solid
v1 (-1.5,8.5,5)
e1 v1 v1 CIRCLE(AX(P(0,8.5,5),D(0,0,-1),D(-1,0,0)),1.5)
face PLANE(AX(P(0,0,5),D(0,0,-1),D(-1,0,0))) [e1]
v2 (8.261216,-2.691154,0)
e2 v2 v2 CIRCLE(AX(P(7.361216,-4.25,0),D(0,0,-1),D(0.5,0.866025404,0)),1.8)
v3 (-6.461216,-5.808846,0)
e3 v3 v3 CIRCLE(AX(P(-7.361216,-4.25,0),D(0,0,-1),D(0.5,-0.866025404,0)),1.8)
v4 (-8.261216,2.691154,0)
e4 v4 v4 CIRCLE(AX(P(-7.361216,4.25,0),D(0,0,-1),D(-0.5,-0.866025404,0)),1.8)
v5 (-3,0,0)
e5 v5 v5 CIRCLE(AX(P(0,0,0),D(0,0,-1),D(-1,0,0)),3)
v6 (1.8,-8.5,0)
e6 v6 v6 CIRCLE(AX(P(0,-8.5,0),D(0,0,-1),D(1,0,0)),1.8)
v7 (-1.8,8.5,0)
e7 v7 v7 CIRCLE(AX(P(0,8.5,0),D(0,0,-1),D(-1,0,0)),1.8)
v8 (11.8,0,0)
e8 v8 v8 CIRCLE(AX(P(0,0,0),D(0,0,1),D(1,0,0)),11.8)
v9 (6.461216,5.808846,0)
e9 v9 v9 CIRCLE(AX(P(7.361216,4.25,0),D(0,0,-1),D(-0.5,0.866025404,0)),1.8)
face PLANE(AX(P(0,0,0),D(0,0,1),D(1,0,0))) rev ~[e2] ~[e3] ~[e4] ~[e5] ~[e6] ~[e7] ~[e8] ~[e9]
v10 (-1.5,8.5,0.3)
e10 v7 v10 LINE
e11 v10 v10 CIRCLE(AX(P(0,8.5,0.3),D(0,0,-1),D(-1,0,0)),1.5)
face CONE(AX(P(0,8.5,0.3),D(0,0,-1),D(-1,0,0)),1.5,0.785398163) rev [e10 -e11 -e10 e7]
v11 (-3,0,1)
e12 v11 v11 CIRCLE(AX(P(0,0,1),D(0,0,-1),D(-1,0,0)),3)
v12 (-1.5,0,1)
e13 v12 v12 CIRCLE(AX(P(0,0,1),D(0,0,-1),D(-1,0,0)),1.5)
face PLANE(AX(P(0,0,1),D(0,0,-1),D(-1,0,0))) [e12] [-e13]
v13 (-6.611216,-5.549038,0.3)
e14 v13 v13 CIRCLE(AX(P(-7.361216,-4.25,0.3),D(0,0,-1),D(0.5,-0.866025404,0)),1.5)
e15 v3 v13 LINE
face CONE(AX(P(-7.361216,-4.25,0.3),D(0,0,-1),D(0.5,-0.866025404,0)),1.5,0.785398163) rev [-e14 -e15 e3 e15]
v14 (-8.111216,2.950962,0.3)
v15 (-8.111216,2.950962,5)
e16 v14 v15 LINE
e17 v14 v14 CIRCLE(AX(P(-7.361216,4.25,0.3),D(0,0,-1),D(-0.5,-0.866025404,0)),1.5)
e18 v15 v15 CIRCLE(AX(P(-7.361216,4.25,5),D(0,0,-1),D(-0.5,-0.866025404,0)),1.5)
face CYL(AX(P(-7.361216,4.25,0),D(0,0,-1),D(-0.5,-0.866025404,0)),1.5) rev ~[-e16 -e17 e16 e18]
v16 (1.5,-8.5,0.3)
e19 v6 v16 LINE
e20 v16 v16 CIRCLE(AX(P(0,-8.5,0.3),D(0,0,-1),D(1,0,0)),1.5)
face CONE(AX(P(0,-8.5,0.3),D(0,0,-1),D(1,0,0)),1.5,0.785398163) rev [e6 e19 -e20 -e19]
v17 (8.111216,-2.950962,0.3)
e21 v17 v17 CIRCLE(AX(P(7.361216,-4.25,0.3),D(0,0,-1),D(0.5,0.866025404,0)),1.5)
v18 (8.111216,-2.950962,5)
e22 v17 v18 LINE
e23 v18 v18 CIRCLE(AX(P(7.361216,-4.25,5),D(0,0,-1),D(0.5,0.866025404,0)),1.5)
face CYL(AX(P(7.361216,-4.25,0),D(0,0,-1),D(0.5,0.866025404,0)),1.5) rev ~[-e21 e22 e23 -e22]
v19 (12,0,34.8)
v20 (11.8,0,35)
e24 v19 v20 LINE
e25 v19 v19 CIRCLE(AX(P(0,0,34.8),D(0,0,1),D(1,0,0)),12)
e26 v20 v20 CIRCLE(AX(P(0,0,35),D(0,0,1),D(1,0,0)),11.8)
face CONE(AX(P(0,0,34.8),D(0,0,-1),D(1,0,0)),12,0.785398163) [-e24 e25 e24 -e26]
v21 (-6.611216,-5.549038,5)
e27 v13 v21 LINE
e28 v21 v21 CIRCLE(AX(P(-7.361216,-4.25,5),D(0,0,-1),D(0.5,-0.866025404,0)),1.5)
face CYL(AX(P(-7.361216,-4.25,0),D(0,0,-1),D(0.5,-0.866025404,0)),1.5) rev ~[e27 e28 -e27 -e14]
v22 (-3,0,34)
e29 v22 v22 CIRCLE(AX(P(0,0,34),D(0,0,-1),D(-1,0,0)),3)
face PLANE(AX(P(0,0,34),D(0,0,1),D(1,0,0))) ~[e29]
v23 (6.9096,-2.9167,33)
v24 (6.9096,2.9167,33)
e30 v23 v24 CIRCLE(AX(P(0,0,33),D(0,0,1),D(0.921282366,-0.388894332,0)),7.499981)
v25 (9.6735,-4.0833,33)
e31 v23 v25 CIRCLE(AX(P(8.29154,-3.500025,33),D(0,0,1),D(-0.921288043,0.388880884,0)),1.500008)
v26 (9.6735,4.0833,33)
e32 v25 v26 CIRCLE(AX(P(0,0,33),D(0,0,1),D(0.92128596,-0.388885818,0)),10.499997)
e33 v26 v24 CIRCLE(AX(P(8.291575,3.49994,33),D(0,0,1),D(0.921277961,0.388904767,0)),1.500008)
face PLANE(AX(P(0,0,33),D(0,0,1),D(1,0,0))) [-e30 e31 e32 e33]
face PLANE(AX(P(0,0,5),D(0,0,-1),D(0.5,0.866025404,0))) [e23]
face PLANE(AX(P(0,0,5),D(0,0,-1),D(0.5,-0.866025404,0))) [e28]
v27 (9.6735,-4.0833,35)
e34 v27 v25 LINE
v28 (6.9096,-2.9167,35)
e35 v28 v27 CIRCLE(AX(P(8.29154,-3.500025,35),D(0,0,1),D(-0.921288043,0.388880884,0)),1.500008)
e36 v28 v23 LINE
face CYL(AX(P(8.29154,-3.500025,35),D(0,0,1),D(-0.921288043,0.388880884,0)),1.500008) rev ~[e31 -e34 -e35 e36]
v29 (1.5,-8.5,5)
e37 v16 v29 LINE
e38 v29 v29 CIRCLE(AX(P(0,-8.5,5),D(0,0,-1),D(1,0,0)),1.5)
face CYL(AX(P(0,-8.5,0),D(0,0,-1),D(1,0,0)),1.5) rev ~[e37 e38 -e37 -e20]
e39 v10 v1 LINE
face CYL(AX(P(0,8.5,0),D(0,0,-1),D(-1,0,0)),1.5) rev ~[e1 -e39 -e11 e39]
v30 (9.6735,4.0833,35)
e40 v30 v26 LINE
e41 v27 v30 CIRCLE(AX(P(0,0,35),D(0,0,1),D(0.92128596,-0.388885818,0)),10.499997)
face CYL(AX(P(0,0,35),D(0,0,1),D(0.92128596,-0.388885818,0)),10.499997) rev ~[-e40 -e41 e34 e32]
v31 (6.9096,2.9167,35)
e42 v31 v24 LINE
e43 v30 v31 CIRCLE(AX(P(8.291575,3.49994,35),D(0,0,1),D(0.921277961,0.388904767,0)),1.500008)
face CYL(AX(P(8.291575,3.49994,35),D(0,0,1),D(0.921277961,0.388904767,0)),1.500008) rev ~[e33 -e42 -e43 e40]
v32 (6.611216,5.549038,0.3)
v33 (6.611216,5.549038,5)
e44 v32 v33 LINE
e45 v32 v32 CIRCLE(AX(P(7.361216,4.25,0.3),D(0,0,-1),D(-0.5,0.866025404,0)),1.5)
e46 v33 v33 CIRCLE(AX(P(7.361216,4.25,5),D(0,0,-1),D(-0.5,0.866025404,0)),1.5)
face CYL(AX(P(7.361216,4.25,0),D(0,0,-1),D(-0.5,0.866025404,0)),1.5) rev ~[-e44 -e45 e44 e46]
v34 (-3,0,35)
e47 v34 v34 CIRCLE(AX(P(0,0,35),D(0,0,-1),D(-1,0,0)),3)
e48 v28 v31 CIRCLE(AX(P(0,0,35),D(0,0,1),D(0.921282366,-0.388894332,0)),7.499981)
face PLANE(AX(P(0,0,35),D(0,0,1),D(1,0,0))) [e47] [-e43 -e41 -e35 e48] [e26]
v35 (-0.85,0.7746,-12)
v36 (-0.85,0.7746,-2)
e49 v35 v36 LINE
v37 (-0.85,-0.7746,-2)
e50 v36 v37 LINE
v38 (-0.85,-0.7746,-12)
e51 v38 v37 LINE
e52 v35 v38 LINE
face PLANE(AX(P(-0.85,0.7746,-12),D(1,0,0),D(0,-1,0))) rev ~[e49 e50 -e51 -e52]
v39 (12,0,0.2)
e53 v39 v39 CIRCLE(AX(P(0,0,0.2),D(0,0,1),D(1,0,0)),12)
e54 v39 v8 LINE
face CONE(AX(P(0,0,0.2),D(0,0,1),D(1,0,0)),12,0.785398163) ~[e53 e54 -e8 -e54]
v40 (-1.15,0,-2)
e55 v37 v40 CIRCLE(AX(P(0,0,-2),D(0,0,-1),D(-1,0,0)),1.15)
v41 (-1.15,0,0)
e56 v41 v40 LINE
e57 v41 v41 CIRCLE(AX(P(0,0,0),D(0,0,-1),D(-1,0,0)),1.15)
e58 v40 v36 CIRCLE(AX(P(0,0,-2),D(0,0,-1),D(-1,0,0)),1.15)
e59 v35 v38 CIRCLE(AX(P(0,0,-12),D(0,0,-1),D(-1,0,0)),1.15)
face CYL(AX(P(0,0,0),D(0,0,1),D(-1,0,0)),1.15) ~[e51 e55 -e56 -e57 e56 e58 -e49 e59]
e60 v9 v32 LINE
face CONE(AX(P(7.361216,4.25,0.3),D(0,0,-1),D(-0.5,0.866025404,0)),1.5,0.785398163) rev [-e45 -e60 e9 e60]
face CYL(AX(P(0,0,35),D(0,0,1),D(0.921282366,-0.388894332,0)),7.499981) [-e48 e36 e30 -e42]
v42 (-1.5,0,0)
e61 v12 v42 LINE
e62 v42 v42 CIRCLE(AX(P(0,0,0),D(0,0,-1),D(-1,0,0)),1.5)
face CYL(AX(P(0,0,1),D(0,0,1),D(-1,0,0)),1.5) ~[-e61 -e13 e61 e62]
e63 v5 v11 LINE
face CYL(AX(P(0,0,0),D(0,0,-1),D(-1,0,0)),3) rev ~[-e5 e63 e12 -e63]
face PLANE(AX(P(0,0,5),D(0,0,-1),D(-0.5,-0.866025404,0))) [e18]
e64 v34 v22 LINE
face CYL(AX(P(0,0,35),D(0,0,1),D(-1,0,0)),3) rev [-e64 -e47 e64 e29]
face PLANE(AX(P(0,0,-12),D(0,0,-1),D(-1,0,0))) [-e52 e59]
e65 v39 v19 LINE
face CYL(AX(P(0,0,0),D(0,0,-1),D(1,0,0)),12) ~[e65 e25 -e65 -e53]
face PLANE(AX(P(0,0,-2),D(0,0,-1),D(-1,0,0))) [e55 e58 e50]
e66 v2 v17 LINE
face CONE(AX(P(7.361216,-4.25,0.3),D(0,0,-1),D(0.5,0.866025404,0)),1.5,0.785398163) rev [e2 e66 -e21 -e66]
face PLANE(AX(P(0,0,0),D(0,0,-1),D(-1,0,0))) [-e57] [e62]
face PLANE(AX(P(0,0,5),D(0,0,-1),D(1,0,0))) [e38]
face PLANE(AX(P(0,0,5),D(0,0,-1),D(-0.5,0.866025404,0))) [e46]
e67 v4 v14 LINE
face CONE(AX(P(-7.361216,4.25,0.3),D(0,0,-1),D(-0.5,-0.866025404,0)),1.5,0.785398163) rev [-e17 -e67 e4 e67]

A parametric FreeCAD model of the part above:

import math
import FreeCAD as App
import Part
import Sketcher
from FreeCAD import Vector


def edges_at(feature, points):
    """Names of the edges that pass closest to the given points."""
    edges = feature.Shape.Edges
    near = lambda p: min(range(len(edges)), key=lambda i: edges[i].distToShape(Part.Vertex(*p))[0])
    return sorted({f"Edge{near(p) + 1}" for p in points})

doc = App.newDocument("Part")
body = doc.addObject("PartDesign::Body", "Body")

# Sketch on XY plane
sketch1 = body.newObject("Sketcher::SketchObject", "Sketch")
sketch1.AttachmentSupport = (doc.getObject("XY_Plane"), [""])
sketch1.MapMode = "FlatFace"
sketch1.addGeometry(Part.Circle(Vector(0, 0, 0), Vector(0, 0, 1), 12), False)
sketch1.addConstraint([
    Sketcher.Constraint("Coincident", 0, 3, -1, 1),
    Sketcher.Constraint("Diameter", 0, 24.0),
])
pad1 = body.newObject("PartDesign::Pad", "Pad")
pad1.Profile = sketch1
pad1.Length = 35
doc.recompute()

chamfer = body.newObject("PartDesign::Chamfer", "Chamfer")
chamfer.Base = (pad1, edges_at(pad1, [(-12, 0, 35), (-12, 0, 0)]))
chamfer.Size = 0.2

# Sketch on XY plane
sketch2 = body.newObject("Sketcher::SketchObject", "Sketch001")
sketch2.AttachmentSupport = (doc.getObject("XY_Plane"), [""])
sketch2.MapMode = "FlatFace"
sketch2.addGeometry(Part.Circle(Vector(0, 0, 0), Vector(0, 0, 1), 3), False)
sketch2.addConstraint([
    Sketcher.Constraint("Coincident", 0, 3, -1, 1),
    Sketcher.Constraint("Diameter", 0, 6.0),
])
pocket1 = body.newObject("PartDesign::Pocket", "Pocket")
pocket1.Profile = sketch2
pocket1.Length = 1
pocket1.Reversed = True
doc.recompute()

datumplane = body.newObject("PartDesign::Plane", "DatumPlane")
datumplane.AttachmentSupport = (doc.getObject("XY_Plane"), [""])
datumplane.MapMode = "FlatFace"
datumplane.AttachmentOffset = App.Placement(Vector(0, 0, 17.5), App.Rotation())
mirrored = body.newObject("PartDesign::Mirrored", "Mirrored")
mirrored.Originals = [pocket1]
mirrored.MirrorPlane = (datumplane, [""])
body.Tip = mirrored

# Sketch on XY plane
sketch3 = body.newObject("Sketcher::SketchObject", "Sketch002")
sketch3.AttachmentSupport = (doc.getObject("XY_Plane"), [""])
sketch3.MapMode = "FlatFace"
sketch3.AttachmentOffset = App.Placement(Vector(0, 0, 1), App.Rotation())
sketch3.addGeometry(Part.Circle(Vector(0, 0, 0), Vector(0, 0, 1), 1.5), False)
sketch3.addConstraint([
    Sketcher.Constraint("Coincident", 0, 3, -1, 1),
    Sketcher.Constraint("Diameter", 0, 3.0),
])
pad2 = body.newObject("PartDesign::Pad", "Pad001")
pad2.Profile = sketch3
pad2.Length = 1
pad2.Reversed = True

# Sketch on XY plane
sketch4 = body.newObject("Sketcher::SketchObject", "Sketch003")
sketch4.AttachmentSupport = (doc.getObject("XY_Plane"), [""])
sketch4.MapMode = "FlatFace"
sketch4.addGeometry(Part.Circle(Vector(0, 0, 0), Vector(0, 0, 1), 1.1), False)
sketch4.addConstraint([
    Sketcher.Constraint("Coincident", 0, 3, -1, 1),
    Sketcher.Constraint("Diameter", 0, 2.3),
])
pad3 = body.newObject("PartDesign::Pad", "Pad002")
pad3.Profile = sketch4
pad3.Length = 12
pad3.Reversed = True

# Sketch on XY plane
sketch5 = body.newObject("Sketcher::SketchObject", "Sketch004")
sketch5.AttachmentSupport = (doc.getObject("XY_Plane"), [""])
sketch5.MapMode = "FlatFace"
sketch5.AttachmentOffset = App.Placement(Vector(0, 0, -12), App.Rotation())
sketch5.addGeometry([
    Part.ArcOfCircle(Part.Circle(Vector(0, 0, 0), Vector(0, 0, 1), 1.1), math.radians(138), math.radians(222)),
    Part.LineSegment(Vector(-0.8, -0.8, 0), Vector(-0.8, 0.8, 0)),
], False)
sketch5.addConstraint([
    Sketcher.Constraint("Coincident", 0, 1, 1, 2),
    Sketcher.Constraint("Coincident", 1, 1, 0, 2),
    Sketcher.Constraint("Vertical", 1),
    Sketcher.Constraint("Coincident", 0, 3, -1, 1),
    Sketcher.Constraint("Radius", 0, 1.15),
    Sketcher.Constraint("DistanceX", 0, 1, -1, 1, 0.85),
])
pocket2 = body.newObject("PartDesign::Pocket", "Pocket001")
pocket2.Profile = sketch5
pocket2.Length = 10
pocket2.Reversed = True

# Sketch on XY plane
sketch6 = body.newObject("Sketcher::SketchObject", "Sketch005")
sketch6.AttachmentSupport = (doc.getObject("XY_Plane"), [""])
sketch6.MapMode = "FlatFace"
sketch6.AttachmentOffset = App.Placement(Vector(0, 0, 35), App.Rotation())
sketch6.addGeometry([
    Part.ArcOfCircle(Part.Circle(Vector(8.3, -3.5, 0), Vector(0, 0, 1), 1.5), math.radians(157), math.radians(337)),
    Part.ArcOfCircle(Part.Circle(Vector(0, 0, 0), Vector(0, 0, 1), 10.5), math.radians(-23), math.radians(23)),
    Part.ArcOfCircle(Part.Circle(Vector(8.3, 3.5, 0), Vector(0, 0, 1), 1.5), math.radians(23), math.radians(203)),
    Part.ArcOfCircle(Part.Circle(Vector(0, 0, 0), Vector(0, 0, 1), 7.5), math.radians(-23), math.radians(23)),
], False)
sketch6.addConstraint([
    Sketcher.Constraint("Tangent", 0, 2, 1, 1),
    Sketcher.Constraint("Tangent", 1, 2, 2, 1),
    Sketcher.Constraint("Tangent", 2, 2, 3, 2),
    Sketcher.Constraint("Tangent", 3, 1, 0, 1),
    Sketcher.Constraint("Coincident", 1, 3, -1, 1),
    Sketcher.Constraint("Coincident", 3, 3, -1, 1),
    Sketcher.Constraint("Vertical", 0, 3, 2, 3),
    Sketcher.Constraint("Radius", 0, 1.5),
    Sketcher.Constraint("DistanceY", 0, 3, 2, 3, 7.0),
    Sketcher.Constraint("Radius", 1, 10.5),
])
pocket3 = body.newObject("PartDesign::Pocket", "Pocket002")
pocket3.Profile = sketch6
pocket3.Length = 2

# Sketch on XY plane
sketch7 = body.newObject("Sketcher::SketchObject", "Sketch006")
sketch7.AttachmentSupport = (doc.getObject("XY_Plane"), [""])
sketch7.MapMode = "FlatFace"
sketch7.addGeometry(Part.Circle(Vector(0, 8.5, 0), Vector(0, 0, 1), 1.5), False)
sketch7.addConstraint([
    Sketcher.Constraint("PointOnObject", 0, 3, -2),
    Sketcher.Constraint("Diameter", 0, 3.0),
    Sketcher.Constraint("DistanceY", -1, 1, 0, 3, 8.5),
])
pocket4 = body.newObject("PartDesign::Pocket", "Pocket003")
pocket4.Profile = sketch7
pocket4.Length = 5
pocket4.Reversed = True
doc.recompute()

chamfer2 = body.newObject("PartDesign::Chamfer", "Chamfer001")
chamfer2.Base = (pocket4, edges_at(pocket4, [(1.5, 8.5, 0)]))
chamfer2.Size = 0.3
doc.recompute()

polarpattern = body.newObject("PartDesign::PolarPattern", "PolarPattern")
polarpattern.Originals = [pocket4, chamfer2]
polarpattern.Axis = (doc.getObject("Z_Axis"), [""])
polarpattern.Angle = 360
polarpattern.Occurrences = 6
body.Tip = polarpattern

doc.recompute()
